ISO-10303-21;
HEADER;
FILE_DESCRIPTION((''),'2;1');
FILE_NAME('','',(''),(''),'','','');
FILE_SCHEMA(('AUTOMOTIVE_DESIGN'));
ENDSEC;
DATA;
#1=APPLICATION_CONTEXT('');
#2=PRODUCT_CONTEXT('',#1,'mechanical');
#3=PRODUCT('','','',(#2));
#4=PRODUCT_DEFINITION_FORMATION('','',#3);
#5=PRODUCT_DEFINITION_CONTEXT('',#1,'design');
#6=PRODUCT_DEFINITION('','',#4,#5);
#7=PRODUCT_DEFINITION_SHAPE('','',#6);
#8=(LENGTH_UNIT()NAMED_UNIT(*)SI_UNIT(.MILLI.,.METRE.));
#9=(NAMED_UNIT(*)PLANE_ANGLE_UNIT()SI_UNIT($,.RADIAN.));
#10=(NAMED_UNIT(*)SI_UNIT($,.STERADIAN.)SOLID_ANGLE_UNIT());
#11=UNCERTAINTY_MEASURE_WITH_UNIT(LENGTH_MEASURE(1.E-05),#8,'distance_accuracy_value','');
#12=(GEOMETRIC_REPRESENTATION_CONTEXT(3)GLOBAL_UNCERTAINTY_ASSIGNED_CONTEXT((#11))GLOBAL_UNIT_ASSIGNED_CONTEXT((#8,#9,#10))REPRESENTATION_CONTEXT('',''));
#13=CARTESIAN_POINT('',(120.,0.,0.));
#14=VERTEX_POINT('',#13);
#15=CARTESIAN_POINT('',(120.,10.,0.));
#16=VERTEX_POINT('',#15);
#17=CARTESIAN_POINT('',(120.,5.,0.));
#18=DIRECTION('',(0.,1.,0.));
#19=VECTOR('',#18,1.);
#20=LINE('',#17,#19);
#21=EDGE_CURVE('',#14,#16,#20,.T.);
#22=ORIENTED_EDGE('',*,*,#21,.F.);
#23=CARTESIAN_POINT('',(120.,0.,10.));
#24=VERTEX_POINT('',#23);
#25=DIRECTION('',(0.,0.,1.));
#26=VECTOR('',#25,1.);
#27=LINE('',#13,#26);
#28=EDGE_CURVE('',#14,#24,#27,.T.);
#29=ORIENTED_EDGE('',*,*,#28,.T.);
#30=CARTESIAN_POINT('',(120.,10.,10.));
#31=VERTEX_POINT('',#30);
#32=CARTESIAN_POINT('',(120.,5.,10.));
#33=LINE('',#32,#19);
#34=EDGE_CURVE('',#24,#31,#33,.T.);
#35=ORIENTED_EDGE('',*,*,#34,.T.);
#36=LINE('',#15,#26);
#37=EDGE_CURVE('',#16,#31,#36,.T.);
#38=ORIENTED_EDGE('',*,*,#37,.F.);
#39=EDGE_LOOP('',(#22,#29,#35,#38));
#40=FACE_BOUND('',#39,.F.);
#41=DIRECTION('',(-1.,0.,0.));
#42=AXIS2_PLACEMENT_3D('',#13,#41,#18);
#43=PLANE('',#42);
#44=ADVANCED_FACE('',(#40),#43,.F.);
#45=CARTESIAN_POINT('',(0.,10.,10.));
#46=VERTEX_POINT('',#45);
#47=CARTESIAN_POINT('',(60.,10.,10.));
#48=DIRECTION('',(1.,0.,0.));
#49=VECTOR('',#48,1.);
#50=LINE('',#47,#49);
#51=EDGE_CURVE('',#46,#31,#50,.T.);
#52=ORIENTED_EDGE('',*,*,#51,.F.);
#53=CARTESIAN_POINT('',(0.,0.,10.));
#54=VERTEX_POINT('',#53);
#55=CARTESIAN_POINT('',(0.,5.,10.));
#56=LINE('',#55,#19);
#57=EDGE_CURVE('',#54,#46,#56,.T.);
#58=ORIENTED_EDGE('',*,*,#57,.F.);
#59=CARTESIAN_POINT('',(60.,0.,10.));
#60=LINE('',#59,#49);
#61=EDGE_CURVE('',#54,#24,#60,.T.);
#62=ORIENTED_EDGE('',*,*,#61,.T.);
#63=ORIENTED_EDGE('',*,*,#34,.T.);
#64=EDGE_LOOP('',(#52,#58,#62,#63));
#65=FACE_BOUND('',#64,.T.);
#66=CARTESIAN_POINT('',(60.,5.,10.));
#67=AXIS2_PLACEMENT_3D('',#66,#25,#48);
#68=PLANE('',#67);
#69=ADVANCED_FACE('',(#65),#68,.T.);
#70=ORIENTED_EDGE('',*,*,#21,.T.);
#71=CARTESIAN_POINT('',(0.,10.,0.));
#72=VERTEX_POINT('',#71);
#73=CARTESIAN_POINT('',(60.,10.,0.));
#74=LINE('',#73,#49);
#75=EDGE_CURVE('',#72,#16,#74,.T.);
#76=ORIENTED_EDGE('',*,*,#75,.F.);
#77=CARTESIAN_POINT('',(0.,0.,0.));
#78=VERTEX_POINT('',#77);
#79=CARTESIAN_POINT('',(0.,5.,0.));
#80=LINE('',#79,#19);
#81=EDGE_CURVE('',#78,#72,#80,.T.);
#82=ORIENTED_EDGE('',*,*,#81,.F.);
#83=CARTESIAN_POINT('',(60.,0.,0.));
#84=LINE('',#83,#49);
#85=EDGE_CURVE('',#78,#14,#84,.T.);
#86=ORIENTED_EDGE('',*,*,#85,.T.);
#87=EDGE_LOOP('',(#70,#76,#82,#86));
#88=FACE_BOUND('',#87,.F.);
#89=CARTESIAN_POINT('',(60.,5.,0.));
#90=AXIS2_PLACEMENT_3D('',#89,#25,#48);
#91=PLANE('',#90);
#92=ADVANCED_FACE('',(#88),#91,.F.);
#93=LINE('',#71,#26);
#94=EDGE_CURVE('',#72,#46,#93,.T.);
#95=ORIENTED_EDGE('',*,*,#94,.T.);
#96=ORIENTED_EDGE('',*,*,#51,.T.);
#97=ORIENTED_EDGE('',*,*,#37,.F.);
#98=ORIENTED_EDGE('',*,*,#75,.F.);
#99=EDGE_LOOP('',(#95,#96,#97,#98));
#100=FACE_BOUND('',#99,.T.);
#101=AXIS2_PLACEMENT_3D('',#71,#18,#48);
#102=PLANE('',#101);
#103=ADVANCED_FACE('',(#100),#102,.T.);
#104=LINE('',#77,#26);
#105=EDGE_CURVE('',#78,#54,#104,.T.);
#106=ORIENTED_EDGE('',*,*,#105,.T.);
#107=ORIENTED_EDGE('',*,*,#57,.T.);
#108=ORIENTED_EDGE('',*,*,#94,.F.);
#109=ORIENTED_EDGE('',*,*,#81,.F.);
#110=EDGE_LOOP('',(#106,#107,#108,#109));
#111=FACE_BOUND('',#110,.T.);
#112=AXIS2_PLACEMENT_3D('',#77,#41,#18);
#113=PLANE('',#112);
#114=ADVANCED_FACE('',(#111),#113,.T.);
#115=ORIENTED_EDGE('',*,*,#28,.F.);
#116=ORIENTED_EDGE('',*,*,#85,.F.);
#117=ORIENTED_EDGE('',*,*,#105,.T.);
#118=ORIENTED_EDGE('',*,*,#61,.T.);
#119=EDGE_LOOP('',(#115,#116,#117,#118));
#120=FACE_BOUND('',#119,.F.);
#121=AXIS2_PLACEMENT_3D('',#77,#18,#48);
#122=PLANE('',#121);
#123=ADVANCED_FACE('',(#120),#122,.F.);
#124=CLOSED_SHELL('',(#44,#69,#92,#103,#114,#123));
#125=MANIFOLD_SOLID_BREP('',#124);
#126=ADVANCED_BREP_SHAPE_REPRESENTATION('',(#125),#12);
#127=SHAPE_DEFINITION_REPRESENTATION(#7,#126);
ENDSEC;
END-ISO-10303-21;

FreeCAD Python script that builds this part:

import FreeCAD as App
import Part
import Sketcher
from FreeCAD import Vector

doc = App.newDocument("Part")
body = doc.addObject("PartDesign::Body", "Body")

sketch1 = body.newObject("Sketcher::SketchObject", "Sketch")
sketch1.AttachmentSupport = (doc.getObject("XY_Plane"), [""])
sketch1.MapMode = "FlatFace"
sketch1.addGeometry(Part.LineSegment(Vector(0, 10, 0), Vector(0, 0, 0)), False)
sketch1.addGeometry(Part.LineSegment(Vector(0, 0, 0), Vector(120, 0, 0)), False)
sketch1.addGeometry(Part.LineSegment(Vector(120, 0, 0), Vector(120, 10, 0)), False)
sketch1.addGeometry(Part.LineSegment(Vector(120, 10, 0), Vector(0, 10, 0)), False)
sketch1.addConstraint(Sketcher.Constraint("Coincident", 0, 2, 1, 1))
sketch1.addConstraint(Sketcher.Constraint("Coincident", 1, 2, 2, 1))
sketch1.addConstraint(Sketcher.Constraint("Coincident", 2, 2, 3, 1))
sketch1.addConstraint(Sketcher.Constraint("Coincident", 3, 2, 0, 1))
sketch1.addConstraint(Sketcher.Constraint("Vertical", 0))
sketch1.addConstraint(Sketcher.Constraint("Horizontal", 1))
sketch1.addConstraint(Sketcher.Constraint("Vertical", 2))
sketch1.addConstraint(Sketcher.Constraint("Horizontal", 3))
sketch1.addConstraint(Sketcher.Constraint("Coincident", 0, 2, -1, 1))
sketch1.addConstraint(Sketcher.Constraint("DistanceX", 1, 1, 1, 2, 120.0))
sketch1.addConstraint(Sketcher.Constraint("DistanceY", 0, 2, 0, 1, 10.0))
pad1 = body.newObject("PartDesign::Pad", "Pad")
pad1.Profile = sketch1
pad1.Length = 10

doc.recompute()
